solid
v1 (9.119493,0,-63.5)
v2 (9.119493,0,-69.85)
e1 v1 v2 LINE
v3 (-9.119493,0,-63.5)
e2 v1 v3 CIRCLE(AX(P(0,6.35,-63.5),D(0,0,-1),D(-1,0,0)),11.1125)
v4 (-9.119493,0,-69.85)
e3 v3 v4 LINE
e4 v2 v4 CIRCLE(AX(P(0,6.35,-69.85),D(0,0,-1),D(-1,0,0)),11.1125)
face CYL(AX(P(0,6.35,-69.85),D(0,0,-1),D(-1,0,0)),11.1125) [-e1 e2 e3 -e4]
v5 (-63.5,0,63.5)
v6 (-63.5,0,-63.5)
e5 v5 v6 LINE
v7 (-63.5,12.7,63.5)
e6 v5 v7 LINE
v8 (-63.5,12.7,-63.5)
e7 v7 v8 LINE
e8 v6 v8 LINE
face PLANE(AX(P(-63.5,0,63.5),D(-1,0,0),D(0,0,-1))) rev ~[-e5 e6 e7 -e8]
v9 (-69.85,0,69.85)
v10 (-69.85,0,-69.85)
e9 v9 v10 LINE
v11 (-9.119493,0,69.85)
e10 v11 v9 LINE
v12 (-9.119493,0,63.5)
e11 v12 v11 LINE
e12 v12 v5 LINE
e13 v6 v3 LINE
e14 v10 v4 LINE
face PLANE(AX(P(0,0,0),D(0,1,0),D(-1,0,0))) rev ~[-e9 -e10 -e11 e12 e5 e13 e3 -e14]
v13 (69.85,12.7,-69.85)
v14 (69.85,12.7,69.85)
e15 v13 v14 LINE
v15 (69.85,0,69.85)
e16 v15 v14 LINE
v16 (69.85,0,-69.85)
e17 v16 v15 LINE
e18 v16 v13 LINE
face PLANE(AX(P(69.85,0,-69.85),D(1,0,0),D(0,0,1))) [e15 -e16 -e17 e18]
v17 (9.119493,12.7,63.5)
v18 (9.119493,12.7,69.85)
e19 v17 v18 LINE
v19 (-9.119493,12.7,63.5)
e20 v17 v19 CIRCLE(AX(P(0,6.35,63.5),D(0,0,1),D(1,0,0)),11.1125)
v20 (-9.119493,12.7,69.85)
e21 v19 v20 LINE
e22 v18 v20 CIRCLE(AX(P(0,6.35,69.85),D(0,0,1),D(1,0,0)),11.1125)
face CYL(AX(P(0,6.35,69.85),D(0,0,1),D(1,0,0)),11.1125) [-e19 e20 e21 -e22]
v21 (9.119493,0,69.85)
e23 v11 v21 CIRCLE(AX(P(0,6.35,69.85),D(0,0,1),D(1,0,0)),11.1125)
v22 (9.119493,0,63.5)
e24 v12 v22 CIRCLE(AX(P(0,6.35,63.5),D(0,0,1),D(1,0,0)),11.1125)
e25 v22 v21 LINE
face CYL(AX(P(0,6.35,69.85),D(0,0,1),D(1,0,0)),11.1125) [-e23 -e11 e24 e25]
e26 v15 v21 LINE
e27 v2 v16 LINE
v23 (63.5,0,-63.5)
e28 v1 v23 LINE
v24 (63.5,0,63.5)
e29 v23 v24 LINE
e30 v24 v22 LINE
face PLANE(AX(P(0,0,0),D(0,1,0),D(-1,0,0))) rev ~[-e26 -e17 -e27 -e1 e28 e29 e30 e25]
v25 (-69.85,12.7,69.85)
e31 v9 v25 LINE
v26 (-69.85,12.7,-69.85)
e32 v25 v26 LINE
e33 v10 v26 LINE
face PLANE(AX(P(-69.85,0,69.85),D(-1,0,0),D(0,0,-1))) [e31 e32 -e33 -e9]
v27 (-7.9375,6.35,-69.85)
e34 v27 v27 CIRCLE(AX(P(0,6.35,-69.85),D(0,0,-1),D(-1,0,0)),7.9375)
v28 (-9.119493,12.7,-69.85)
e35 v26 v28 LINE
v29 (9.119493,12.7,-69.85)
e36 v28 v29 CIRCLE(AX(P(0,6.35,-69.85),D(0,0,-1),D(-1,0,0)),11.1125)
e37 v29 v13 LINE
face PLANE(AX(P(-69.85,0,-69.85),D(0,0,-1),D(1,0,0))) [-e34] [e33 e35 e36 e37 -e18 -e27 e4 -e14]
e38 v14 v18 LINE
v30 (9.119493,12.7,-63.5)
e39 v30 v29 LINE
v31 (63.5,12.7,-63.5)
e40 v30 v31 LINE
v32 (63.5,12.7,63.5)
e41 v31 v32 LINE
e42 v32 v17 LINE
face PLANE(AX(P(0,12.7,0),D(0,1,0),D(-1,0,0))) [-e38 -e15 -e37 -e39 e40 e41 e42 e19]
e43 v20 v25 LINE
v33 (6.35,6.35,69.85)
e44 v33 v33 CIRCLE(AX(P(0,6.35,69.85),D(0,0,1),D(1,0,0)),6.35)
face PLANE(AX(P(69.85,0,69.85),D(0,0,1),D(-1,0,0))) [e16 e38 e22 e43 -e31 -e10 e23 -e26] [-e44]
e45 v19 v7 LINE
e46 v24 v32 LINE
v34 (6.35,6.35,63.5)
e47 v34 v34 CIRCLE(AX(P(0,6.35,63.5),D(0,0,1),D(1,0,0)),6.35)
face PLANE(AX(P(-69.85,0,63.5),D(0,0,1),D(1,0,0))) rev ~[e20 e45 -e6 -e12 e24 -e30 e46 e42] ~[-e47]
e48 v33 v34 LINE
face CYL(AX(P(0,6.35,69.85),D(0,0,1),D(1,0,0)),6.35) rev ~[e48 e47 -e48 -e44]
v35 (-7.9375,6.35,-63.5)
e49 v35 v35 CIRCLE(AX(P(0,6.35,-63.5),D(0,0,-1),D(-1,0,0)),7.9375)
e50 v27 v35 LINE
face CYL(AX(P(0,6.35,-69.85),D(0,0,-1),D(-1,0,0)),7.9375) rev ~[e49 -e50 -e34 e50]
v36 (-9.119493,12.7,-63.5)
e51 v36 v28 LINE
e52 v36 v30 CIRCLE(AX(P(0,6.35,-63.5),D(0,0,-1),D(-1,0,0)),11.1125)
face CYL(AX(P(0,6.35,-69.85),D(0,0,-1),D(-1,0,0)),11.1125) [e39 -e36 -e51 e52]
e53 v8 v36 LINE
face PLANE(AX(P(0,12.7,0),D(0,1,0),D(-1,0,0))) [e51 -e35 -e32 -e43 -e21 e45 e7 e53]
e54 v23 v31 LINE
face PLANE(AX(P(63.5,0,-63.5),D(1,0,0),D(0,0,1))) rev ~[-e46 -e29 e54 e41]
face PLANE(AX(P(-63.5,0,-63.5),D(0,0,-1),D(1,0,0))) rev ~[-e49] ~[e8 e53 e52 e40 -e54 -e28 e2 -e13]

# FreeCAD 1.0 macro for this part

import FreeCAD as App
import Part
import Sketcher
from FreeCAD import Vector
Q = App.Units.Quantity


def add_polygon(sketch, points):
    """Adds a closed chain of lines whose ends are joined by coincident constraints."""
    first, n = sketch.GeometryCount, len(points)
    for a, b in zip(points, points[1:] + points[:1]):
        sketch.addGeometry(Part.LineSegment(App.Vector(*a, 0), App.Vector(*b, 0)), False)
    for i in range(n):
        sketch.addConstraint(Sketcher.Constraint("Coincident", first + i, 2, first + (i + 1) % n, 1))

doc = App.newDocument("Part")
body = doc.addObject("PartDesign::Body", "Body")

# Sketch on XZ plane
sketch1 = body.newObject("Sketcher::SketchObject", "Sketch")
sketch1.AttachmentSupport = (doc.getObject("XZ_Plane"), [""])
sketch1.MapMode = "FlatFace"
add_polygon(sketch1, [(-70, 70), (70, 70), (70, -70), (-70, -70)])  # lines 0-3
add_polygon(sketch1, [(64, -64), (64, 64), (-64, 64), (-64, -64)])  # lines 4-7
sketch1.addConstraint([
    Sketcher.Constraint("Horizontal", 0),
    Sketcher.Constraint("Vertical", 1),
    Sketcher.Constraint("Horizontal", 2),
    Sketcher.Constraint("Vertical", 3),
    Sketcher.Constraint("Vertical", 4),
    Sketcher.Constraint("Horizontal", 5),
    Sketcher.Constraint("Vertical", 6),
    Sketcher.Constraint("Horizontal", 7),
    Sketcher.Constraint("Symmetric", 0, 2, 2, 2, -1, 1),
    Sketcher.Constraint("Symmetric", 4, 2, 6, 2, -1, 1),
    Sketcher.Constraint("Equal", 2, 1),
    Sketcher.Constraint("Equal", 7, 4),
    Sketcher.Constraint("DistanceX", 5, 2, 5, 1, Q("5 in")),
    Sketcher.Constraint("DistanceX", 0, 1, 0, 2, Q("5.5 in")),
])
pad1 = body.newObject("PartDesign::Pad", "Pad")
pad1.Profile = sketch1
pad1.Length = Q("0.5 in")
pad1.Reversed = True

# Sketch on XY plane
sketch2 = body.newObject("Sketcher::SketchObject", "Sketch001")
sketch2.AttachmentSupport = (doc.getObject("XY_Plane"), [""])
sketch2.MapMode = "FlatFace"
sketch2.AttachmentOffset = App.Placement(Vector(0, 0, -2.75 * 25.4), App.Rotation())
sketch2.addGeometry(Part.Circle(Vector(0, 6, 0), Vector(0, 0, 1), 11), False)
sketch2.addConstraint([
    Sketcher.Constraint("PointOnObject", 0, 3, -2),
    Sketcher.Constraint("Diameter", 0, Q("0.875 in")),
    Sketcher.Constraint("DistanceY", -1, 1, 0, 3, Q("0.25 in")),
])
pad2 = body.newObject("PartDesign::Pad", "Pad001")
pad2.Profile = sketch2
pad2.Length = Q("0.25 in")

# Sketch on XY plane
sketch3 = body.newObject("Sketcher::SketchObject", "Sketch002")
sketch3.AttachmentSupport = (doc.getObject("XY_Plane"), [""])
sketch3.MapMode = "FlatFace"
sketch3.AttachmentOffset = App.Placement(Vector(0, 0, -2.75 * 25.4), App.Rotation())
sketch3.addGeometry(Part.Circle(Vector(0, 6, 0), Vector(0, 0, 1), 8), False)
sketch3.addConstraint([
    Sketcher.Constraint("PointOnObject", 0, 3, -2),
    Sketcher.Constraint("Diameter", 0, Q("0.625 in")),
    Sketcher.Constraint("DistanceY", -1, 1, 0, 3, Q("0.25 in")),
])
pocket1 = body.newObject("PartDesign::Pocket", "Pocket")
pocket1.Profile = sketch3
pocket1.Type = "UpToFirst"
pocket1.Reversed = True

# Sketch on XY plane
sketch4 = body.newObject("Sketcher::SketchObject", "Sketch003")
sketch4.AttachmentSupport = (doc.getObject("XY_Plane"), [""])
sketch4.MapMode = "FlatFace"
sketch4.AttachmentOffset = App.Placement(Vector(0, 0, 2.75 * 25.4), App.Rotation())
sketch4.addGeometry(Part.Circle(Vector(0, 6, 0), Vector(0, 0, 1), 11), False)
sketch4.addConstraint([
    Sketcher.Constraint("PointOnObject", 0, 3, -2),
    Sketcher.Constraint("Diameter", 0, Q("0.875 in")),
    Sketcher.Constraint("DistanceY", -1, 1, 0, 3, Q("0.25 in")),
])
pad3 = body.newObject("PartDesign::Pad", "Pad002")
pad3.Profile = sketch4
pad3.Length = Q("0.25 in")
pad3.Reversed = True

# Sketch on XY plane
sketch5 = body.newObject("Sketcher::SketchObject", "Sketch004")
sketch5.AttachmentSupport = (doc.getObject("XY_Plane"), [""])
sketch5.MapMode = "FlatFace"
sketch5.AttachmentOffset = App.Placement(Vector(0, 0, 2.75 * 25.4), App.Rotation())
sketch5.addGeometry(Part.Circle(Vector(0, 6, 0), Vector(0, 0, 1), 6), False)
sketch5.addConstraint([
    Sketcher.Constraint("PointOnObject", 0, 3, -2),
    Sketcher.Constraint("Diameter", 0, Q("0.5 in")),
    Sketcher.Constraint("DistanceY", -1, 1, 0, 3, Q("0.25 in")),
])
pocket2 = body.newObject("PartDesign::Pocket", "Pocket001")
pocket2.Profile = sketch5
pocket2.Type = "UpToFirst"

doc.recompute()
